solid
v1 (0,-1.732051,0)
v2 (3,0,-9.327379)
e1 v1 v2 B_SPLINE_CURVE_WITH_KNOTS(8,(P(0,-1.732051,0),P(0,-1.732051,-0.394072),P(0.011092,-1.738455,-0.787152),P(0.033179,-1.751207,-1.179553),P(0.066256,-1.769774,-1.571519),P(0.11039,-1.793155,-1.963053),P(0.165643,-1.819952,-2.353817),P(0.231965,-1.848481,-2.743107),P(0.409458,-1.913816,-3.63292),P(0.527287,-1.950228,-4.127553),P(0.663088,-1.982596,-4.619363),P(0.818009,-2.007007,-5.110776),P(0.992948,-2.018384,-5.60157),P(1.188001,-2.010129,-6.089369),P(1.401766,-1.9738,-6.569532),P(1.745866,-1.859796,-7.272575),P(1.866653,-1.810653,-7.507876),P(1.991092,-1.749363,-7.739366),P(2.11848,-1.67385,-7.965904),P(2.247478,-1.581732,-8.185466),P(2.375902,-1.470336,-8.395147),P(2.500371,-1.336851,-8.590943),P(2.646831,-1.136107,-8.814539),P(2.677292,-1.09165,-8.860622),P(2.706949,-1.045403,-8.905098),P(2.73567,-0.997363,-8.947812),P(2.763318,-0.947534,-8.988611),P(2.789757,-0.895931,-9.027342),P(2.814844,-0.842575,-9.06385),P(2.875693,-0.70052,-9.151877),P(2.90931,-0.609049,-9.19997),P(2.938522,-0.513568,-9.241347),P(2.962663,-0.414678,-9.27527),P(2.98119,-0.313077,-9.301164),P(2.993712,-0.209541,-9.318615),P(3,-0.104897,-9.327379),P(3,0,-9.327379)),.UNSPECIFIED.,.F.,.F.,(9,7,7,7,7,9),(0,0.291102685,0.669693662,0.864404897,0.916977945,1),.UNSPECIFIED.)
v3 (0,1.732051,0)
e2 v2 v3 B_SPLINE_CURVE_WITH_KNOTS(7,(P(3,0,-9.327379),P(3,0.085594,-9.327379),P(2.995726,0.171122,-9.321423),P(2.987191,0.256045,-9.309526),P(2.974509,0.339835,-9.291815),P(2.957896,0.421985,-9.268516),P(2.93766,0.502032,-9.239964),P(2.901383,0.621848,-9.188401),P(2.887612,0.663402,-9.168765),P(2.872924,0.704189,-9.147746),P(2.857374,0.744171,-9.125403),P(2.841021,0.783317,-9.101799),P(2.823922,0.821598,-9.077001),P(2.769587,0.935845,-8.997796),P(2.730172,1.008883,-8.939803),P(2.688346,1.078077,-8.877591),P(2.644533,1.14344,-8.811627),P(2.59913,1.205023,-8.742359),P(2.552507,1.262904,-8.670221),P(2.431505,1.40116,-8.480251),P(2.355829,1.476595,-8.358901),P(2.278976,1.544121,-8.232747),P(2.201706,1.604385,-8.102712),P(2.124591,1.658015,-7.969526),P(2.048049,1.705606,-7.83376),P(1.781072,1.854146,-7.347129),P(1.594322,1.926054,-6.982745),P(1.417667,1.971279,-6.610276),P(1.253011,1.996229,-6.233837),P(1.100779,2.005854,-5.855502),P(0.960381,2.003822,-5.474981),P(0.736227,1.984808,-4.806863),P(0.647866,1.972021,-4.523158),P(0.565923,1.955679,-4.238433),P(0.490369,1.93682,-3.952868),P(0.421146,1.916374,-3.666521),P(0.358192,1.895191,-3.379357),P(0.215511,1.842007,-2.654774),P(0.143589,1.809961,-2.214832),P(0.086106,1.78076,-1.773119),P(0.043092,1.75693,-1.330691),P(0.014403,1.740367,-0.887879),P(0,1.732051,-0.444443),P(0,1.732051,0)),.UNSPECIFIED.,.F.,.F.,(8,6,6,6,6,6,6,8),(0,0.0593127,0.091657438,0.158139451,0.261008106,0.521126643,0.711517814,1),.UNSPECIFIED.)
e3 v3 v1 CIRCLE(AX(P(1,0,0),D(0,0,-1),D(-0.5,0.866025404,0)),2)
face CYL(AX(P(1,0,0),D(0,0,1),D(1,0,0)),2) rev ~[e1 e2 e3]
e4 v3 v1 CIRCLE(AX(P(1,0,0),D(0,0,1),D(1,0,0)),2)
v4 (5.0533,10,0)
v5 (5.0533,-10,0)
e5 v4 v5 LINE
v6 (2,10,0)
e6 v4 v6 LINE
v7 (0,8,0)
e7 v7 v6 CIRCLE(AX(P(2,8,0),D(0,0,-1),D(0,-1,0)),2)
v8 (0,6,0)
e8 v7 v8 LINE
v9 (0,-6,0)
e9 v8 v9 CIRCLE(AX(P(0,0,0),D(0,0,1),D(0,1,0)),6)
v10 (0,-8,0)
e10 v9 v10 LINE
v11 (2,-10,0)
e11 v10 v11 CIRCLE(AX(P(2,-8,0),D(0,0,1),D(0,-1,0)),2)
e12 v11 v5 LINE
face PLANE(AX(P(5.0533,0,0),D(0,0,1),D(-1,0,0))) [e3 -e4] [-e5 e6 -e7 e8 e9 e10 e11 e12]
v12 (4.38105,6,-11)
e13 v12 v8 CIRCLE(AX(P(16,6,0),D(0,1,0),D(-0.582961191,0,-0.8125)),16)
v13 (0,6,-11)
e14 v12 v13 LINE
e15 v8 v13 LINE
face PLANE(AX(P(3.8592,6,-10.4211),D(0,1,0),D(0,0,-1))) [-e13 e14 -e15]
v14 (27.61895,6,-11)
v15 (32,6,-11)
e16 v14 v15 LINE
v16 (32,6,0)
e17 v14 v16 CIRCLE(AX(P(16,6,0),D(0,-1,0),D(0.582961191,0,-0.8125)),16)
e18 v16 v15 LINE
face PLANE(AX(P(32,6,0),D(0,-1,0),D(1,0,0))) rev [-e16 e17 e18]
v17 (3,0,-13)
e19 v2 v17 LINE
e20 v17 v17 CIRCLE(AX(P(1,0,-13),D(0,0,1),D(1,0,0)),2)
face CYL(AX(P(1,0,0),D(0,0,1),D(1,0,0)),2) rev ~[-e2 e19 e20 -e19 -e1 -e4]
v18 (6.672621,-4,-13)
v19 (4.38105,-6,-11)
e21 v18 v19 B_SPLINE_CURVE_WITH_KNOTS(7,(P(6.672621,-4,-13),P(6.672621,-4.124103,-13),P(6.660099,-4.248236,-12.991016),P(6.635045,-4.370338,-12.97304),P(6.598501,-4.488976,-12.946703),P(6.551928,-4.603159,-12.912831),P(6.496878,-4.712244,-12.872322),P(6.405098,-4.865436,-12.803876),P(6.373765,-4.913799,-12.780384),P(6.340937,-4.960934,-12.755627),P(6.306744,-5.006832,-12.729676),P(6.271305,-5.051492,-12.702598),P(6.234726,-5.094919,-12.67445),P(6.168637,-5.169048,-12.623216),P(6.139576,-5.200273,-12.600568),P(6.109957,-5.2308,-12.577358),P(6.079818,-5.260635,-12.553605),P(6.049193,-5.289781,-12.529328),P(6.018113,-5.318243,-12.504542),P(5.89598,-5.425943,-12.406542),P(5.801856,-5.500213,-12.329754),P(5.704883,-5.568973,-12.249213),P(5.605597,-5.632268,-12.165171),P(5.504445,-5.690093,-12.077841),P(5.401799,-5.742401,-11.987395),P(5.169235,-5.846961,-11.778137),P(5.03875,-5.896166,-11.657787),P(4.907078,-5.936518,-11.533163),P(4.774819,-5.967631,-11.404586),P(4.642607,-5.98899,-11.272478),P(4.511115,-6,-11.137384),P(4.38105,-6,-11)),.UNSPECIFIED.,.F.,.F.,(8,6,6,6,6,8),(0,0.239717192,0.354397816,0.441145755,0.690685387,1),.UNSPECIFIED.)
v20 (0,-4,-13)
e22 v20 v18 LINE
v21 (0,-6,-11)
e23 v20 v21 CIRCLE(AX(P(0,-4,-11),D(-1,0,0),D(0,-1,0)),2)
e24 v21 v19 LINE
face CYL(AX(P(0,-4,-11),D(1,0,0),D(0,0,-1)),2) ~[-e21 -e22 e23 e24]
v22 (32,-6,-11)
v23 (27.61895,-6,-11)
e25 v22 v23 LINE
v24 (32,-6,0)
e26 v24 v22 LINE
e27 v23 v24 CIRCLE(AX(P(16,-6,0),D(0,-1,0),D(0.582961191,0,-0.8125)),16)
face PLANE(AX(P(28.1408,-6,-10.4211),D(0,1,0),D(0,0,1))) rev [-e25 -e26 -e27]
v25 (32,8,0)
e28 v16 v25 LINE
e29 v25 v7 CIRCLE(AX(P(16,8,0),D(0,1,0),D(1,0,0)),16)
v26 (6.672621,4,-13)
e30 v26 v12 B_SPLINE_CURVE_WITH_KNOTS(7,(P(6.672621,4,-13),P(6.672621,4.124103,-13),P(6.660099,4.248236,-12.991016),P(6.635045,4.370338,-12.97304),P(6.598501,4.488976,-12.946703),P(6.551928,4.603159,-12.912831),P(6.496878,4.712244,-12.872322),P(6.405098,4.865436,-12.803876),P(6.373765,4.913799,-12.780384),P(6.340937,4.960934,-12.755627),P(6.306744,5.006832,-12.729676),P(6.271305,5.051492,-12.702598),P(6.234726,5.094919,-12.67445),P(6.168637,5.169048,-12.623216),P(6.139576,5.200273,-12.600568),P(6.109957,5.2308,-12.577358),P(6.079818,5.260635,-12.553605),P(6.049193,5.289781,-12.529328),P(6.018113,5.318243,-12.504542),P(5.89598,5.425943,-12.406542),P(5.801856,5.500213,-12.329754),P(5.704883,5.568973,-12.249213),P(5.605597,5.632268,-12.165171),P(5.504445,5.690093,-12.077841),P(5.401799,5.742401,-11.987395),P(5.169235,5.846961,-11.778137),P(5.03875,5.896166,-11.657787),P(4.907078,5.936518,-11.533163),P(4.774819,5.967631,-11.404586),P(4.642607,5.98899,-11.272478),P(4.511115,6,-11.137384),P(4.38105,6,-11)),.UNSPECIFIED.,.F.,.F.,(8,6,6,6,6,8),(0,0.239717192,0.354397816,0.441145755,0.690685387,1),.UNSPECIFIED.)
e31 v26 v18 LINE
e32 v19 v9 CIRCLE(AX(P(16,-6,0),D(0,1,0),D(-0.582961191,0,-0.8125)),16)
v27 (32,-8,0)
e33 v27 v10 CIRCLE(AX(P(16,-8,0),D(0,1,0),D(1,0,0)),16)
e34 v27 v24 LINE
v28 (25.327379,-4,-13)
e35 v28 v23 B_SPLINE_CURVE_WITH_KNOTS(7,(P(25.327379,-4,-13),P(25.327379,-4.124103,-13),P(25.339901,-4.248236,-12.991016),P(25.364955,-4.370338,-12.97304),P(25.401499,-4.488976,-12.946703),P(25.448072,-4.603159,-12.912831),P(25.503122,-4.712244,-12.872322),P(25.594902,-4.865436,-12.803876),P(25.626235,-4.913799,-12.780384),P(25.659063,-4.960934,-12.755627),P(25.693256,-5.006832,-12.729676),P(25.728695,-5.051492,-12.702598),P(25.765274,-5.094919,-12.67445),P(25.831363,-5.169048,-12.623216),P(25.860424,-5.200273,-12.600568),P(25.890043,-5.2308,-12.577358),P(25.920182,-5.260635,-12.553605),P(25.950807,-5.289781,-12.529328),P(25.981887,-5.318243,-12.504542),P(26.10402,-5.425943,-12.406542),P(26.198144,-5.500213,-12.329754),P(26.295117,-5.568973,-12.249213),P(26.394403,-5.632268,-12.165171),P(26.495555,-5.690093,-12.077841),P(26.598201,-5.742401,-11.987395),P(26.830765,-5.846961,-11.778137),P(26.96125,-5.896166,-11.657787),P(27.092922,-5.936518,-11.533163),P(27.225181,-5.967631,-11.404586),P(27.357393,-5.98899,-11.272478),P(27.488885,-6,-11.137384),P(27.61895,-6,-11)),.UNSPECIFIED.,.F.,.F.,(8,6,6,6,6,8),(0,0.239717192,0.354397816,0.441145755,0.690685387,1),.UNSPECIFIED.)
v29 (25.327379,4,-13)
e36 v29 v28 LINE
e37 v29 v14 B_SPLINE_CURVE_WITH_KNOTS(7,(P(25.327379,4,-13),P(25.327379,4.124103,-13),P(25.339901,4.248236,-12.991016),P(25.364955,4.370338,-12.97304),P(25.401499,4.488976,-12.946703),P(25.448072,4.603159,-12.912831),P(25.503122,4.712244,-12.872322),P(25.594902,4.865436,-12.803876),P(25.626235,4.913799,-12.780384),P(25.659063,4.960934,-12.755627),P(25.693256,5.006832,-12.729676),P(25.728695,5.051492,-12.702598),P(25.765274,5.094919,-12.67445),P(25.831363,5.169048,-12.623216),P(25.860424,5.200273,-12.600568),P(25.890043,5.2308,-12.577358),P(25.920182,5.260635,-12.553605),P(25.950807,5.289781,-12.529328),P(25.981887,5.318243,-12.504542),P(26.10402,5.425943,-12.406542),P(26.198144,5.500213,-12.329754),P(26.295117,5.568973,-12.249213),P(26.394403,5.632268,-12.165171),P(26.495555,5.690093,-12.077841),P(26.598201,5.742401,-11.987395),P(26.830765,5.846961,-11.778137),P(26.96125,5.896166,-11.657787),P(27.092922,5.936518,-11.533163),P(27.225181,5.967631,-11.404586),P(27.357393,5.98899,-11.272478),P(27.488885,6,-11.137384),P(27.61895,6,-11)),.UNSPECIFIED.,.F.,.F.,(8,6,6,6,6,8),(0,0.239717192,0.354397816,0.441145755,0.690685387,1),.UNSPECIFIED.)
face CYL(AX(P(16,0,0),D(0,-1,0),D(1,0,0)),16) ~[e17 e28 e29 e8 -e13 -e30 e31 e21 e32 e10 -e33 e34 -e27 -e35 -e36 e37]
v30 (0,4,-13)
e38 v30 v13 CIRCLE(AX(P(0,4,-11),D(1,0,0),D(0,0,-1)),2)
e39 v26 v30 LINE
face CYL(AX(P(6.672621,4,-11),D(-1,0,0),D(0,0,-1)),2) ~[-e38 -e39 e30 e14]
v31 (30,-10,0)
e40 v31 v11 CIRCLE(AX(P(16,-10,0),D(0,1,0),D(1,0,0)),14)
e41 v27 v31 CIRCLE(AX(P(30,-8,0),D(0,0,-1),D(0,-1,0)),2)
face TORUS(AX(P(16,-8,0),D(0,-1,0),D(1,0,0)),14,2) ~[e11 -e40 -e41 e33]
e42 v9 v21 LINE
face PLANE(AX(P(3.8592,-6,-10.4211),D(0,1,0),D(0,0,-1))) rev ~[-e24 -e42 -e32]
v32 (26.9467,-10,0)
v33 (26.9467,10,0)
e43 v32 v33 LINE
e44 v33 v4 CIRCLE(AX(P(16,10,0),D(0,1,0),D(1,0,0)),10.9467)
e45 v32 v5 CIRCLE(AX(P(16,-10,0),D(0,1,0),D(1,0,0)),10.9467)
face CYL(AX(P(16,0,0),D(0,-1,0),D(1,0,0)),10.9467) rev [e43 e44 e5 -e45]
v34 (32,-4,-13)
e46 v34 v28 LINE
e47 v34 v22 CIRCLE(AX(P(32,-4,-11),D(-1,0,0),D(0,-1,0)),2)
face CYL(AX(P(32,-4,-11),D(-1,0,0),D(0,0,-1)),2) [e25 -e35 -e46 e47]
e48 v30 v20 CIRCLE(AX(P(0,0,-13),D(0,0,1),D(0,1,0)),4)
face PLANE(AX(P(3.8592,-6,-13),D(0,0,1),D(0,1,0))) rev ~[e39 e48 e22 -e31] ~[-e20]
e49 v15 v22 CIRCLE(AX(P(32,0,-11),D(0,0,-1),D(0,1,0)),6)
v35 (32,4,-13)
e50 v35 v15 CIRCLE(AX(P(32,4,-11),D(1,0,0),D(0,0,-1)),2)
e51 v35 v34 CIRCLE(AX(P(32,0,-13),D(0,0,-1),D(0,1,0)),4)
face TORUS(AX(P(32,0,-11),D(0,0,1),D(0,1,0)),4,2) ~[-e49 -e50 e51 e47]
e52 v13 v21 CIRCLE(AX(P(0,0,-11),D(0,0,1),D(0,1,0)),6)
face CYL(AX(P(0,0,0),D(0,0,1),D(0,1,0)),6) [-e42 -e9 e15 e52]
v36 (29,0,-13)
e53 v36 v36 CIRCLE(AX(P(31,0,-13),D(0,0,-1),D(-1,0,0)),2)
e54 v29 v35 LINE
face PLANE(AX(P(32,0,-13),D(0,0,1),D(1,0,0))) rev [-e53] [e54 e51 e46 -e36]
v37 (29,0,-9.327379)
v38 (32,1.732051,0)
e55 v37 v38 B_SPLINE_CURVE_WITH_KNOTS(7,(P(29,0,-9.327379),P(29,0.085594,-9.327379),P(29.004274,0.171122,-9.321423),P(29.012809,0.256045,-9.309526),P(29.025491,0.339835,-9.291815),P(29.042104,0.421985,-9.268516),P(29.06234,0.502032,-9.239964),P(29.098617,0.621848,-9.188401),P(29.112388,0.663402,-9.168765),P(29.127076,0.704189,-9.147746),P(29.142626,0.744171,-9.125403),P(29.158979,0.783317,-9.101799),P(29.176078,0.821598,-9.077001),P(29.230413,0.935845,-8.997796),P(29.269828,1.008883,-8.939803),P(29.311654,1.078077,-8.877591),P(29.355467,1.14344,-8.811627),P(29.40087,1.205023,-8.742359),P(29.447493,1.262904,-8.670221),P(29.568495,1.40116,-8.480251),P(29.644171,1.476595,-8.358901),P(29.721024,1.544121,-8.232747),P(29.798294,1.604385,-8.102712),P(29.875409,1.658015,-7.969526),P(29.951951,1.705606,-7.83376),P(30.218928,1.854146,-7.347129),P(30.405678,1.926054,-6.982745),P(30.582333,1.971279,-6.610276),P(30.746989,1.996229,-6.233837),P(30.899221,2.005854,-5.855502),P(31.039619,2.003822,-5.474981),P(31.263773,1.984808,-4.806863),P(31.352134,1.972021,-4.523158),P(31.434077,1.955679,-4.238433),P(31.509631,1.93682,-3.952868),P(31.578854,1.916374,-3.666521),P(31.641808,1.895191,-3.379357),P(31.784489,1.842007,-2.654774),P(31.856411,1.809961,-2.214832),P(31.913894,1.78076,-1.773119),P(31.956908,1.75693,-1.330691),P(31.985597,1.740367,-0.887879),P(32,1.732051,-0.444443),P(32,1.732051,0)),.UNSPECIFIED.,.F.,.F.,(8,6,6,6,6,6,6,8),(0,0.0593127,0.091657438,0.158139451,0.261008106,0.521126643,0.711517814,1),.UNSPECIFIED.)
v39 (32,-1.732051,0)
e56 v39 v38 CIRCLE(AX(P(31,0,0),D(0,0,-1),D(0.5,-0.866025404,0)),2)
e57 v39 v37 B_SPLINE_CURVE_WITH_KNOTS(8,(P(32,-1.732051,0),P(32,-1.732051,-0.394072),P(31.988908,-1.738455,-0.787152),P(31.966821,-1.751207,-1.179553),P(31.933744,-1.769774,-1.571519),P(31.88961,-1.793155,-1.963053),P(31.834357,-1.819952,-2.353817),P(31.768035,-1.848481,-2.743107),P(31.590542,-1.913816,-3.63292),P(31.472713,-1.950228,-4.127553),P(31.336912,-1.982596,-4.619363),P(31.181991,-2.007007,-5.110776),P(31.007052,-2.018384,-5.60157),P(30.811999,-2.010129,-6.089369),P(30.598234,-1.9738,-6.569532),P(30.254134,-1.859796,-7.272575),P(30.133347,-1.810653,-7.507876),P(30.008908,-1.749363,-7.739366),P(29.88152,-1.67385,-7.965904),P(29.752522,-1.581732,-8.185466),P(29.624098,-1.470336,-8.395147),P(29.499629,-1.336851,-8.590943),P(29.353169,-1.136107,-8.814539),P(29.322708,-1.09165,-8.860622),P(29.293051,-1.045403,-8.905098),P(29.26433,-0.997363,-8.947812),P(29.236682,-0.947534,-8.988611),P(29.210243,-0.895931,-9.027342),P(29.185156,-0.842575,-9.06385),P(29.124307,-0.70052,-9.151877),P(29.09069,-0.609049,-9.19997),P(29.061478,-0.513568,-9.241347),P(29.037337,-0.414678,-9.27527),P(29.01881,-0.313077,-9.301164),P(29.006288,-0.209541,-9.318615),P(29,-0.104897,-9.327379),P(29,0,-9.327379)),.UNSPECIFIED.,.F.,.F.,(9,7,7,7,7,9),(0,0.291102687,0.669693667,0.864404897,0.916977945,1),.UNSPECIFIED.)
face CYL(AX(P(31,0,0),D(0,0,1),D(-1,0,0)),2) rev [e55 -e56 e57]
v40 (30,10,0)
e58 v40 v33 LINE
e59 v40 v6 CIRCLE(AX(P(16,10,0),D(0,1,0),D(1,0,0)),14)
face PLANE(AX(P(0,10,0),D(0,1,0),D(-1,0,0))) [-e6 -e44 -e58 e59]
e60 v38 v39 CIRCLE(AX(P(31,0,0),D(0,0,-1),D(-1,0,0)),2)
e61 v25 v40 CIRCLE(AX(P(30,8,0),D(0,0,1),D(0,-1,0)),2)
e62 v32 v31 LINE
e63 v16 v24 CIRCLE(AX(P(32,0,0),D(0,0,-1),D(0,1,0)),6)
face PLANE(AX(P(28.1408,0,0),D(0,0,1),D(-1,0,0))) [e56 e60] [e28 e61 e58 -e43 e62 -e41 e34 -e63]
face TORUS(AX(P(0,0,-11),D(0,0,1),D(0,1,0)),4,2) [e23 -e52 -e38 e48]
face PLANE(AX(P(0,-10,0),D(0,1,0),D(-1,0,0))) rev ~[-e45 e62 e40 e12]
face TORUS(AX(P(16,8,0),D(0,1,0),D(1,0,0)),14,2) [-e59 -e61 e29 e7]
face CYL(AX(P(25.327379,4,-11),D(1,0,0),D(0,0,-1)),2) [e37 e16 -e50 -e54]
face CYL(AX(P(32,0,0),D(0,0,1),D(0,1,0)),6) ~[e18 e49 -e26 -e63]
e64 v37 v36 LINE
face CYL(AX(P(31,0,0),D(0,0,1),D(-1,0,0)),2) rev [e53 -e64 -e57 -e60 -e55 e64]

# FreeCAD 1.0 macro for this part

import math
import FreeCAD as App
import Part
import Sketcher
from FreeCAD import Vector
Q = App.Units.Quantity


def edges_at(feature, points):
    """Names of the edges that pass closest to the given points."""
    edges = feature.Shape.Edges
    near = lambda p: min(range(len(edges)), key=lambda i: edges[i].distToShape(Part.Vertex(*p))[0])
    return sorted({f"Edge{near(p) + 1}" for p in points})

doc = App.newDocument("Part")
body = doc.addObject("PartDesign::Body", "Body")

# Sketch on XZ plane
sketch1 = doc.addObject("Sketcher::SketchObject", "Sketch")
body.addObject(sketch1)
sketch1.AttachmentSupport = (doc.XZ_Plane, [""])
sketch1.MapMode = "FlatFace"
sketch1.addGeometry(Part.ArcOfCircle(Part.Circle(Vector(16, 0, 0), Vector(0, 0, 1), 10.9467), math.radians(180), math.radians(360)), False)
sketch1.addGeometry(Part.LineSegment(Vector(26.9467, 0, 0), Vector(32, 0, 0)), False)
sketch1.addGeometry(Part.ArcOfCircle(Part.Circle(Vector(16, 0, 0), Vector(0, 0, 1), 16), math.radians(180), math.radians(360)), False)
sketch1.addGeometry(Part.LineSegment(Vector(0, 0, 0), Vector(5.0533, 0, 0)), False)
sketch1.addConstraint(Sketcher.Constraint("Coincident", 0, 2, 1, 1))
sketch1.addConstraint(Sketcher.Constraint("Coincident", 1, 2, 2, 2))
sketch1.addConstraint(Sketcher.Constraint("Coincident", 2, 1, 3, 1))
sketch1.addConstraint(Sketcher.Constraint("Coincident", 3, 2, 0, 1))
sketch1.addConstraint(Sketcher.Constraint("Horizontal", 1))
sketch1.addConstraint(Sketcher.Constraint("Horizontal", 3))
sketch1.addConstraint(Sketcher.Constraint("Coincident", 2, 1, -1, 1))
sketch1.addConstraint(Sketcher.Constraint("Coincident", 2, 3, 0, 3))
sketch1.addConstraint(Sketcher.Constraint("PointOnObject", 0, 3, -1))
sketch1.addConstraint(Sketcher.Constraint("PointOnObject", 0, 2, -1))
sketch1.addConstraint(Sketcher.Constraint("Radius", 2, Q("16 mm")))
sketch1.addConstraint(Sketcher.Constraint("Radius", 0, Q("10.9467 mm")))
pad1 = doc.addObject("PartDesign::Pad", "Pad")
body.addObject(pad1)
pad1.Profile = sketch1
pad1.Length = 20
pad1.Midplane = True

# Sketch on XY plane
sketch2 = doc.addObject("Sketcher::SketchObject", "Sketch001")
body.addObject(sketch2)
sketch2.AttachmentSupport = (doc.XY_Plane, [""])
sketch2.MapMode = "FlatFace"
sketch2.addGeometry(Part.LineSegment(Vector(3.8592, 6, 0), Vector(0, 6, 0)), False)
sketch2.addGeometry(Part.ArcOfCircle(Part.Circle(Vector(0, 0, 0), Vector(0, 0, 1), 6), math.radians(90), math.radians(270)), False)
sketch2.addGeometry(Part.LineSegment(Vector(0, -6, 0), Vector(3.8592, -6, 0)), False)
sketch2.addGeometry(Part.LineSegment(Vector(3.8592, -6, 0), Vector(3.8592, 6, 0)), False)
sketch2.addGeometry(Part.Circle(Vector(1, 0, 0), Vector(0, 0, 1), 2), False)
sketch2.addConstraint(Sketcher.Constraint("Tangent", 0, 2, 1, 1))
sketch2.addConstraint(Sketcher.Constraint("Tangent", 1, 2, 2, 1))
sketch2.addConstraint(Sketcher.Constraint("Coincident", 2, 2, 3, 1))
sketch2.addConstraint(Sketcher.Constraint("Coincident", 3, 2, 0, 1))
sketch2.addConstraint(Sketcher.Constraint("Horizontal", 0))
sketch2.addConstraint(Sketcher.Constraint("Horizontal", 2))
sketch2.addConstraint(Sketcher.Constraint("Vertical", 3))
sketch2.addConstraint(Sketcher.Constraint("Coincident", 1, 3, -1, 1))
sketch2.addConstraint(Sketcher.Constraint("PointOnObject", 4, 3, -1))
sketch2.addConstraint(Sketcher.Constraint("Diameter", 4, Q("4 mm")))
sketch2.addConstraint(Sketcher.Constraint("Radius", 1, Q("6 mm")))
sketch2.addConstraint(Sketcher.Constraint("DistanceX", -1, 1, 4, 3, Q("1 mm")))
sketch2.addConstraint(Sketcher.Constraint("DistanceX", 0, 2, 0, 1, Q("3.8592 mm")))
pad2 = doc.addObject("PartDesign::Pad", "Pad001")
body.addObject(pad2)
pad2.Profile = sketch2
pad2.Length = 13
pad2.Reversed = True

# Sketch on YZ plane
sketch3 = doc.addObject("Sketcher::SketchObject", "Sketch002")
body.addObject(sketch3)
sketch3.AttachmentSupport = (doc.YZ_Plane, [""])
sketch3.MapMode = "FlatFace"
sketch3.AttachmentOffset = App.Placement(Vector(0, 0, 3.8592), App.Rotation())
sketch3.addGeometry(Part.LineSegment(Vector(6, -10.4211, 0), Vector(-6, -10.4211, 0)), False)
sketch3.addGeometry(Part.LineSegment(Vector(-6, -10.4211, 0), Vector(-6, -13, 0)), False)
sketch3.addGeometry(Part.LineSegment(Vector(-6, -13, 0), Vector(6, -13, 0)), False)
sketch3.addGeometry(Part.LineSegment(Vector(6, -13, 0), Vector(6, -10.4211, 0)), False)
sketch3.addConstraint(Sketcher.Constraint("Coincident", 0, 2, 1, 1))
sketch3.addConstraint(Sketcher.Constraint("Coincident", 1, 2, 2, 1))
sketch3.addConstraint(Sketcher.Constraint("Coincident", 2, 2, 3, 1))
sketch3.addConstraint(Sketcher.Constraint("Coincident", 3, 2, 0, 1))
sketch3.addConstraint(Sketcher.Constraint("Horizontal", 0))
sketch3.addConstraint(Sketcher.Constraint("Vertical", 1))
sketch3.addConstraint(Sketcher.Constraint("Horizontal", 2))
sketch3.addConstraint(Sketcher.Constraint("Vertical", 3))
sketch3.addConstraint(Sketcher.Constraint("DistanceX", 0, 2, 0, 1, Q("12 mm")))
sketch3.addConstraint(Sketcher.Constraint("DistanceX", 0, 2, -1, 1, Q("6 mm")))
sketch3.addConstraint(Sketcher.Constraint("DistanceY", 1, 2, -1, 1, Q("13 mm")))
sketch3.addConstraint(Sketcher.Constraint("DistanceY", 1, 2, 1, 1, Q("2.579 mm")))
pad3 = doc.addObject("PartDesign::Pad", "Pad002")
body.addObject(pad3)
pad3.Profile = sketch3
pad3.Length = 5
doc.recompute()

datumplane = doc.addObject("PartDesign::Plane", "DatumPlane")
body.addObject(datumplane)
datumplane.AttachmentSupport = (doc.YZ_Plane, [""])
datumplane.MapMode = "FlatFace"
datumplane.AttachmentOffset = App.Placement(Vector(0, 0, 16), App.Rotation())
mirrored = doc.addObject("PartDesign::Mirrored", "Mirrored")
body.addObject(mirrored)
mirrored.Originals = [pad3, pad2]
mirrored.MirrorPlane = (datumplane, [""])
body.Tip = mirrored

# Sketch on XY plane
sketch4 = doc.addObject("Sketcher::SketchObject", "Sketch003")
body.addObject(sketch4)
sketch4.AttachmentSupport = (doc.XY_Plane, [""])
sketch4.MapMode = "FlatFace"
sketch4.addGeometry(Part.Circle(Vector(1, 0, 0), Vector(0, 0, 1), 2), False)
sketch4.addConstraint(Sketcher.Constraint("PointOnObject", 0, 3, -1))
sketch4.addConstraint(Sketcher.Constraint("Diameter", 0, Q("4 mm")))
sketch4.addConstraint(Sketcher.Constraint("DistanceX", -1, 1, 0, 3, Q("1 mm")))
pocket1 = doc.addObject("PartDesign::Pocket", "Pocket")
body.addObject(pocket1)
pocket1.Profile = sketch4
pocket1.Type = "ThroughAll"
doc.recompute()

datumplane2 = doc.addObject("PartDesign::Plane", "DatumPlane001")
body.addObject(datumplane2)
datumplane2.AttachmentSupport = (doc.YZ_Plane, [""])
datumplane2.MapMode = "FlatFace"
datumplane2.AttachmentOffset = App.Placement(Vector(0, 0, 16), App.Rotation())
mirrored2 = doc.addObject("PartDesign::Mirrored", "Mirrored001")
body.addObject(mirrored2)
mirrored2.Originals = [pocket1]
mirrored2.MirrorPlane = (datumplane2, [""])
body.Tip = mirrored2
doc.recompute()

fillet = doc.addObject("PartDesign::Fillet", "Fillet")
body.addObject(fillet)
fillet.Base = (mirrored2, edges_at(mirrored2, [
    (3.336, -6, -13),
    (3.336, 6, -13),
    (-6, 0, -13),
    (28.664, -6, -13),
    (28.664, 6, -13),
    (38, 0, -13),
    (16, 10, -16),
    (16, -10, -16),
]))
fillet.Radius = 2

doc.recompute()
